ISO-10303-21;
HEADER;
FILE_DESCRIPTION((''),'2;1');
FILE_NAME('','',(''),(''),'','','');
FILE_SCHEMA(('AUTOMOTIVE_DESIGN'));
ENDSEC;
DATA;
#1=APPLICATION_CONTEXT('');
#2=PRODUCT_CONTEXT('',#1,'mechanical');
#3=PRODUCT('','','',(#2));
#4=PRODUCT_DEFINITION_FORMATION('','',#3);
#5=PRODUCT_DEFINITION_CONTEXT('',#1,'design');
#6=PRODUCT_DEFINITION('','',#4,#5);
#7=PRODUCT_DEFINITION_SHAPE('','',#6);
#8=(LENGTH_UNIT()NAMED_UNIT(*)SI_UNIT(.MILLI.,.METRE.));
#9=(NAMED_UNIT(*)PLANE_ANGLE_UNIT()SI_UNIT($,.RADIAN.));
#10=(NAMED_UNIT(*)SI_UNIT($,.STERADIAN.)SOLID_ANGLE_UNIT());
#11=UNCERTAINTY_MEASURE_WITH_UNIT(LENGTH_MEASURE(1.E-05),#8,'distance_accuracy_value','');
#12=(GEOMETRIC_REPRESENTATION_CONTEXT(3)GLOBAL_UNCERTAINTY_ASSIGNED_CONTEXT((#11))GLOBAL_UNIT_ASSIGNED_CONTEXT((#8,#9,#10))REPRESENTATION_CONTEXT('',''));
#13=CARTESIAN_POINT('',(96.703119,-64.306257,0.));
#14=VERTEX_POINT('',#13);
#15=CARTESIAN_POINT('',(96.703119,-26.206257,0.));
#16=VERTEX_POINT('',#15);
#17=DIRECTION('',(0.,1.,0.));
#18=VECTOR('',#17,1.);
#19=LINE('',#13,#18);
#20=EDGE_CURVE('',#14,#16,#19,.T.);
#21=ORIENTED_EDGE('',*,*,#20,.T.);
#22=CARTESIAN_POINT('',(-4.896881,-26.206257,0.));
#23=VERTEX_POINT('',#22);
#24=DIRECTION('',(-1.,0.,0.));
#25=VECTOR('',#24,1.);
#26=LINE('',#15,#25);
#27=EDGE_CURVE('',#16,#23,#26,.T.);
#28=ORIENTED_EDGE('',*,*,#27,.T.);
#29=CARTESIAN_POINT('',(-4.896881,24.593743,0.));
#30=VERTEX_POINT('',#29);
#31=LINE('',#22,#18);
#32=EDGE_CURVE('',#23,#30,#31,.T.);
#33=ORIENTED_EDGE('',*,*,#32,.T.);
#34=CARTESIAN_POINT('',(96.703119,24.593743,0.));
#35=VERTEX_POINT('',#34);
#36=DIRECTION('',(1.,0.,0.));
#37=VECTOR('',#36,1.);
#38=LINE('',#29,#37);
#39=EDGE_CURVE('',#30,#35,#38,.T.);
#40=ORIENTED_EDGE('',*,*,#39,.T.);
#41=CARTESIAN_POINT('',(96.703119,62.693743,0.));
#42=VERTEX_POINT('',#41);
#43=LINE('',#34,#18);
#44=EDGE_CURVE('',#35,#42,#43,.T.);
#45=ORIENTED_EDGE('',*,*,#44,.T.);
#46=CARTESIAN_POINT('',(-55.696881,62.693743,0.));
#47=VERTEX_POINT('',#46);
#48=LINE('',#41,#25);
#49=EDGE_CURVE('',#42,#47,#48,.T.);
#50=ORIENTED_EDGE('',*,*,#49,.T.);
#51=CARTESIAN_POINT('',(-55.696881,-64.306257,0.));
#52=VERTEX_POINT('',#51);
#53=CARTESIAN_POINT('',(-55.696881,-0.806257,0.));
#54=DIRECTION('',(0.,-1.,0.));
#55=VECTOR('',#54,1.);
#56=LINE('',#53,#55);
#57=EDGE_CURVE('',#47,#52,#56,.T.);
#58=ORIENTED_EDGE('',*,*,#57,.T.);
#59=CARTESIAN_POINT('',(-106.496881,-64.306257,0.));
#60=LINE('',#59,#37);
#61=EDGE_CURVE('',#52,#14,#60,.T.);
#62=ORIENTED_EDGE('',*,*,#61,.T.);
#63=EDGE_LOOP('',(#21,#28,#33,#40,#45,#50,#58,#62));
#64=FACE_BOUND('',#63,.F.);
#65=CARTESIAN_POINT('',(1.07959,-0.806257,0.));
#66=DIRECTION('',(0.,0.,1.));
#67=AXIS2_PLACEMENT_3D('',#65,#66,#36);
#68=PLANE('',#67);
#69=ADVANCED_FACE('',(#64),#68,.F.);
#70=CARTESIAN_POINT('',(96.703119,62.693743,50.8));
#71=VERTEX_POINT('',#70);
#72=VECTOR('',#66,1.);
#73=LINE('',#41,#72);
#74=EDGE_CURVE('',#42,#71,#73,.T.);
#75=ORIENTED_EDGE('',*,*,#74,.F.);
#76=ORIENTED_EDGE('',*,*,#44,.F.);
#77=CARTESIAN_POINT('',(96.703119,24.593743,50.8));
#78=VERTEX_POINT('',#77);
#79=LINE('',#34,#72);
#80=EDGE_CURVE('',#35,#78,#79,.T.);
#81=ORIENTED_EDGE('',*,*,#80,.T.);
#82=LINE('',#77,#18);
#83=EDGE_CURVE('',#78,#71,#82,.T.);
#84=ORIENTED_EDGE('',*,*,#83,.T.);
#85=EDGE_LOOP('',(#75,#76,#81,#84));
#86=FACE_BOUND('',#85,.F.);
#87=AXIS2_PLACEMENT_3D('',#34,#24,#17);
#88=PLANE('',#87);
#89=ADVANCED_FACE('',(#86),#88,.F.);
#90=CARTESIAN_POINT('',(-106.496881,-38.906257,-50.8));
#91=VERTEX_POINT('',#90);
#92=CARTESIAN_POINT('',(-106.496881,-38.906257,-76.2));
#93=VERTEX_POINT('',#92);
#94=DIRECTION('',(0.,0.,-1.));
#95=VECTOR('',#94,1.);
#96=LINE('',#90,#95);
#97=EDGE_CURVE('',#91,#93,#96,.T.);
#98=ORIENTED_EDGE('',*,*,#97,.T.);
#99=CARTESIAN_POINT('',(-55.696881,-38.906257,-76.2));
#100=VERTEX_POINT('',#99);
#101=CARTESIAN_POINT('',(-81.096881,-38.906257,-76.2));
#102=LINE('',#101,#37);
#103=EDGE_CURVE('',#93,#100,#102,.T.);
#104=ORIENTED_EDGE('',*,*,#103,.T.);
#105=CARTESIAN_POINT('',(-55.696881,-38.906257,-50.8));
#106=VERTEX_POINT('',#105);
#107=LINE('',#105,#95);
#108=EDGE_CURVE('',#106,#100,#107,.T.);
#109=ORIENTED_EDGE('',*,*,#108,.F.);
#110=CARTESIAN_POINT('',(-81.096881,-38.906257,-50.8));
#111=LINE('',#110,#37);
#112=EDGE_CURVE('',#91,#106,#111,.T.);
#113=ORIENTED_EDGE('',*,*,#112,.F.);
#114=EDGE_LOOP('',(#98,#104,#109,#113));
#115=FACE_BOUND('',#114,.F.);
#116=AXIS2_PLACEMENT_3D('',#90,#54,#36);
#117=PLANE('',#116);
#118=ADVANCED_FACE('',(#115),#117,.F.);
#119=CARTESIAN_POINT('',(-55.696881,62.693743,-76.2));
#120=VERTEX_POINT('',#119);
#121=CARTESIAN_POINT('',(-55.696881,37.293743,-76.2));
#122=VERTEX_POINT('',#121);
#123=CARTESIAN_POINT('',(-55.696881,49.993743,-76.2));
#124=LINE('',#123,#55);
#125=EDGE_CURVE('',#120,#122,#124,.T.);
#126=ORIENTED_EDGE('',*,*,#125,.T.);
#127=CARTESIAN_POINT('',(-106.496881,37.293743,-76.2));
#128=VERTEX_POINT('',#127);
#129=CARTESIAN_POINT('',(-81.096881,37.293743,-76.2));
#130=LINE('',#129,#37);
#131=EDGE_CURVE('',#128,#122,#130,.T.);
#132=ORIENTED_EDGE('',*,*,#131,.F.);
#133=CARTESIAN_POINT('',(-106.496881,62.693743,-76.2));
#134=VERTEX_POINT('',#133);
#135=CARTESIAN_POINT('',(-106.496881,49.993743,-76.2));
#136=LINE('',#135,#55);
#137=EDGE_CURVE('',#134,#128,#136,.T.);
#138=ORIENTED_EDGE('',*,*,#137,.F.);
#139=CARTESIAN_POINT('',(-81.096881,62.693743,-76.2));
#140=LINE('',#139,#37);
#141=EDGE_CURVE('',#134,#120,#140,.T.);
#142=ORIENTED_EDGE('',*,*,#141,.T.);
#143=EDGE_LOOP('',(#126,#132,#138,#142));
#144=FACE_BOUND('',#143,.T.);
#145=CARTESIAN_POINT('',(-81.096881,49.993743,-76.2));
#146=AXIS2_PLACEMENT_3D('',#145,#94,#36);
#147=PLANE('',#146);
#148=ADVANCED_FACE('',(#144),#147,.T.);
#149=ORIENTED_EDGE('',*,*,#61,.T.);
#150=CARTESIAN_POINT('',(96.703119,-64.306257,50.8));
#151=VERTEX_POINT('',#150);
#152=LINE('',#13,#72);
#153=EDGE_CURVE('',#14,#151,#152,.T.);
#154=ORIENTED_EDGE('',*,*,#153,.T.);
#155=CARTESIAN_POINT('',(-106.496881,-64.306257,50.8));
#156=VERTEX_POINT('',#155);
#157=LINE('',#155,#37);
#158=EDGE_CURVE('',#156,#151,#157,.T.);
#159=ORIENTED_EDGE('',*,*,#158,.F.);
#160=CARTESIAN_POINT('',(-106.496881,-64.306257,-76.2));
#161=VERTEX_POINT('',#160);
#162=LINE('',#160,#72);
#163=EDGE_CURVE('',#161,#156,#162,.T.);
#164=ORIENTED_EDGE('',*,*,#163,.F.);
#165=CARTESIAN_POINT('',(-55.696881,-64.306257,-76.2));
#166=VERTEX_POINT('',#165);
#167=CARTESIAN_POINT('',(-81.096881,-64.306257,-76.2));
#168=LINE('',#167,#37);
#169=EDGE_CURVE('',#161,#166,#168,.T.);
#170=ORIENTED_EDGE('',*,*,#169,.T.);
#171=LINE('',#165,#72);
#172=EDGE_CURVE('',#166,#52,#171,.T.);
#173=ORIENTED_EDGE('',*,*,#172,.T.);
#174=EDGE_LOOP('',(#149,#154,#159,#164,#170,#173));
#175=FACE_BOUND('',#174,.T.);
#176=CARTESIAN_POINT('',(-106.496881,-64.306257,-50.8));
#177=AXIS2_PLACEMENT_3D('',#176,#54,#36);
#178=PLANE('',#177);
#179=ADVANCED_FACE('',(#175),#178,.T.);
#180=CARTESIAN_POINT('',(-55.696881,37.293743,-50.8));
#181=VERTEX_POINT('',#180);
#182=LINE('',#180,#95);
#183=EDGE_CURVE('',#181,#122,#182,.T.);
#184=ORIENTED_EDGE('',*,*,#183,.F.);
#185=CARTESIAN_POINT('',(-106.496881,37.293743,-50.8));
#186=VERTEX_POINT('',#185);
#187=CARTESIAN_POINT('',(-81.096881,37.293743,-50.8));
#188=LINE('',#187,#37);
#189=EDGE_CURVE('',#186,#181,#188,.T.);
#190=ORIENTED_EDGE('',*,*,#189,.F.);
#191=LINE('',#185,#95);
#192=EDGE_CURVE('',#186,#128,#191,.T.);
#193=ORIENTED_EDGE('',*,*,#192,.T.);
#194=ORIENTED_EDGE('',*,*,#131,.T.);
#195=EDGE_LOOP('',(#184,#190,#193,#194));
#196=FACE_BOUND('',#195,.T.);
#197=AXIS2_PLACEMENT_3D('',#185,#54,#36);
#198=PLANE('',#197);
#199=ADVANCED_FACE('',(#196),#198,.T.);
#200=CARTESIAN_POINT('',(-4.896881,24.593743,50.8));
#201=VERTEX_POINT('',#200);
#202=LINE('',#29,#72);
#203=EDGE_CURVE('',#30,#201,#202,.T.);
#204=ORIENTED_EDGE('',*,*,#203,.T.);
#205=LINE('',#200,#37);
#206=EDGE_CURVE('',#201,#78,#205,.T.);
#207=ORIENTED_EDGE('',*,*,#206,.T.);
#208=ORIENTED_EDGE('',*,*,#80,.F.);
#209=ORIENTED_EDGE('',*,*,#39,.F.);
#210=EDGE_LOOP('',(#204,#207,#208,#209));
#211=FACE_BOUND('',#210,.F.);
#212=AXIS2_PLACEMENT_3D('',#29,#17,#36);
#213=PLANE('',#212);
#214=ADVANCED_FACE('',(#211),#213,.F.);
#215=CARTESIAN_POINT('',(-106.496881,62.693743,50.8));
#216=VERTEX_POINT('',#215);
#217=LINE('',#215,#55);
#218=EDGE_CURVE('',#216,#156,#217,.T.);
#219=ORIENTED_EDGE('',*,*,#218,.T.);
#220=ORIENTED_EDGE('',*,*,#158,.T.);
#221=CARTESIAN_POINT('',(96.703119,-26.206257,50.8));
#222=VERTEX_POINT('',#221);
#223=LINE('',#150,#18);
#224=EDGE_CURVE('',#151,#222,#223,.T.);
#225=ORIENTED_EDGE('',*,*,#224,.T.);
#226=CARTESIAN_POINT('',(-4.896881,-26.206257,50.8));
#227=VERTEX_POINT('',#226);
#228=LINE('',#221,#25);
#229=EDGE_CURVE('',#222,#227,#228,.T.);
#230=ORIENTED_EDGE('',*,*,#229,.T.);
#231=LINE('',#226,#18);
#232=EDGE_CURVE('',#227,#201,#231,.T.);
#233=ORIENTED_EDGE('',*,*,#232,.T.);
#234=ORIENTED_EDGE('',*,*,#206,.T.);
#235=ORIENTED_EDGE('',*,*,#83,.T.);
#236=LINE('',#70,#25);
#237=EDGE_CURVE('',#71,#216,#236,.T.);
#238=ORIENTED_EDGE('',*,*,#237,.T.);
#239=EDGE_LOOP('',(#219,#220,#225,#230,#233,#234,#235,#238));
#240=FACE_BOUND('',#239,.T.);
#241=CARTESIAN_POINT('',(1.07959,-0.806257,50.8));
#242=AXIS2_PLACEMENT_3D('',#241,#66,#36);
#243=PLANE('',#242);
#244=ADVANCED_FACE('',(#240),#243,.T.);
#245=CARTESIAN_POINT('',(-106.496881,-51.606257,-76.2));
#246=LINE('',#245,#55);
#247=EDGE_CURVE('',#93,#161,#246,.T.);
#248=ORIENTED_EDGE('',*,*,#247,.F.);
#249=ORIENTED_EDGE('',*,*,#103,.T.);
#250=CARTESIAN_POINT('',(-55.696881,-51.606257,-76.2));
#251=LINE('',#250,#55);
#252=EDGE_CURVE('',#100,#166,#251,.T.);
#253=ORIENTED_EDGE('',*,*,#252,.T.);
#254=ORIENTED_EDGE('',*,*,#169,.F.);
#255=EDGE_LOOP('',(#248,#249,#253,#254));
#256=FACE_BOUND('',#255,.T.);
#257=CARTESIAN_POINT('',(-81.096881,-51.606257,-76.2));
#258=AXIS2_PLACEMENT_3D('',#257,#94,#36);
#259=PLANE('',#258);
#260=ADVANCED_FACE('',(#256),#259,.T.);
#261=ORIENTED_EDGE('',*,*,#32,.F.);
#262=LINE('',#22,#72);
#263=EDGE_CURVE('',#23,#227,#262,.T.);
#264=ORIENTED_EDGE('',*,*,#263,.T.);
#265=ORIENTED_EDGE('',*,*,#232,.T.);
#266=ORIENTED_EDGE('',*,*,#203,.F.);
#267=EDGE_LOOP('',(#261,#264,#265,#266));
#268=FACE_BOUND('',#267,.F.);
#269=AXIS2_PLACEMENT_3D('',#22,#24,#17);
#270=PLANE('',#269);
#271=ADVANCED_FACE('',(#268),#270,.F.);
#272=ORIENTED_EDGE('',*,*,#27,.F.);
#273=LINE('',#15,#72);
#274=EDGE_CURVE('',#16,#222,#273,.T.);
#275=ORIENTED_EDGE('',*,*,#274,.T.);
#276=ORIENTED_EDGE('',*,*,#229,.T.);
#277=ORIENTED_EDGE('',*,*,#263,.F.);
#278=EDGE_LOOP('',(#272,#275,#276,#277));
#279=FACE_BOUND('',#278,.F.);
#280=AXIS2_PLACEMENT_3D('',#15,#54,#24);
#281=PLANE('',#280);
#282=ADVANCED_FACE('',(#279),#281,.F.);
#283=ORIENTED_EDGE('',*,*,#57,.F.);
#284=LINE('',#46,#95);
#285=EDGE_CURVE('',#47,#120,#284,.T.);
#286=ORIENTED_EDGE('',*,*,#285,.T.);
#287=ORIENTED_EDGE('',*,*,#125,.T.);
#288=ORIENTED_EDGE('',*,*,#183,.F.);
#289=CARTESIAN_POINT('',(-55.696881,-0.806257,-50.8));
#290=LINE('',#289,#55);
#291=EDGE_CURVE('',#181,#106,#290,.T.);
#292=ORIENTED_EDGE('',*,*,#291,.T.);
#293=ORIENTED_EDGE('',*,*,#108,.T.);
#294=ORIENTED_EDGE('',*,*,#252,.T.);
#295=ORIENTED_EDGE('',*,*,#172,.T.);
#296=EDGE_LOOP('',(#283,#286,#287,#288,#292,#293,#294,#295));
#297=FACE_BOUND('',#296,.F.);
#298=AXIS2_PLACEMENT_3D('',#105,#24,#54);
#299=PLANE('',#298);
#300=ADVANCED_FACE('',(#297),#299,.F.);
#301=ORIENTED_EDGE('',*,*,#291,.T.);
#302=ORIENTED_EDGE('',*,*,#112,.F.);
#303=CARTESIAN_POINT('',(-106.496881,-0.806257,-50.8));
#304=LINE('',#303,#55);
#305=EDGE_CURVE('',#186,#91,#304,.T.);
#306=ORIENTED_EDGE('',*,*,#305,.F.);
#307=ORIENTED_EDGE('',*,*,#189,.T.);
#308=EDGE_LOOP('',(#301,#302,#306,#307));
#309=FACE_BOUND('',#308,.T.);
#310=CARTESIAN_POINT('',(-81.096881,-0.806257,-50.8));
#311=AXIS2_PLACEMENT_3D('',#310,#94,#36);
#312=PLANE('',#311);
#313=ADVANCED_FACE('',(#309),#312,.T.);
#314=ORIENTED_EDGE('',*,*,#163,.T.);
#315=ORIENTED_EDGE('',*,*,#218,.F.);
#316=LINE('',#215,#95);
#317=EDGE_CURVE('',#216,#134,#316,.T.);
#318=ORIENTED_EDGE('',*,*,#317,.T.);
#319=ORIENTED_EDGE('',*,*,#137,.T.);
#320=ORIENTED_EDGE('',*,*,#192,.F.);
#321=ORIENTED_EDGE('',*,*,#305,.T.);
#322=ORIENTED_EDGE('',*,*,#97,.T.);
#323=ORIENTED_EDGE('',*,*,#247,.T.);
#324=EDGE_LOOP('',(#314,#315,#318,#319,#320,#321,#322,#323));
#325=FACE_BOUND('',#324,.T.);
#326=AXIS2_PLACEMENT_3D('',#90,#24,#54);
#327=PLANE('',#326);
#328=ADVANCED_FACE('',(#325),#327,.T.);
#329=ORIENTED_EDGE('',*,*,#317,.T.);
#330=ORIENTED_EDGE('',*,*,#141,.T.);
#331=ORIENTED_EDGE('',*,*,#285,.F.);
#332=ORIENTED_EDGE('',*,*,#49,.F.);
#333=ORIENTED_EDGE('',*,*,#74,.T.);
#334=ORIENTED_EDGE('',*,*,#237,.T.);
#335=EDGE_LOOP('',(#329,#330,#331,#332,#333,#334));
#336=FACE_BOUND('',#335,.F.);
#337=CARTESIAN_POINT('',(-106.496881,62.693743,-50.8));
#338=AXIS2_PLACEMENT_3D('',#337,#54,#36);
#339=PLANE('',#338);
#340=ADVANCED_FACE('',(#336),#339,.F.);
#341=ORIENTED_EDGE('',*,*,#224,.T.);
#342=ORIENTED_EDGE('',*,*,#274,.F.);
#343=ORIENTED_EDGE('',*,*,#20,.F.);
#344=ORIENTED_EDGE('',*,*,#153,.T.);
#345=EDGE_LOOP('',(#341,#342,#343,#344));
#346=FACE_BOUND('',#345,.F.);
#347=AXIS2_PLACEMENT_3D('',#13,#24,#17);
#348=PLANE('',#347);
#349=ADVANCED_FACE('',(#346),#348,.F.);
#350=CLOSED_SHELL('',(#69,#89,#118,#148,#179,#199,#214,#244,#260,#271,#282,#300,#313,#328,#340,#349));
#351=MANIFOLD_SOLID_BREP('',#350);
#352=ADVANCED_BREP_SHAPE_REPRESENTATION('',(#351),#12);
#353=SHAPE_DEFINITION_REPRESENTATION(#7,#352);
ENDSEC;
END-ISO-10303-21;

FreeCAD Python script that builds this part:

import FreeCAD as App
import Part
import Sketcher
Q = App.Units.Quantity

doc = App.newDocument("Part")
body = doc.addObject("PartDesign::Body", "Body")

# Sketch on XY plane
sketch1 = body.newObject("Sketcher::SketchObject", "Sketch")
sketch1.AttachmentSupport = (doc.getObject("XY_Plane"), [""])
sketch1.MapMode = "FlatFace"
sketch1.addGeometry(Part.LineSegment(App.Vector(96.703119, 62.693743, 0), App.Vector(-106.496881, 62.693743, 0)), False)
sketch1.addGeometry(Part.LineSegment(App.Vector(-106.496881, 62.693743, 0), App.Vector(-106.496881, -64.306257, 0)), False)
sketch1.addGeometry(Part.LineSegment(App.Vector(-106.496881, -64.306257, 0), App.Vector(96.703119, -64.306257, 0)), False)
sketch1.addGeometry(Part.LineSegment(App.Vector(96.703119, -64.306257, 0), App.Vector(96.703119, -26.206257, 0)), False)
sketch1.addGeometry(Part.LineSegment(App.Vector(96.703119, -26.206257, 0), App.Vector(-4.896881, -26.206257, 0)), False)
sketch1.addGeometry(Part.LineSegment(App.Vector(-4.896881, -26.206257, 0), App.Vector(-4.896881, 24.593743, 0)), False)
sketch1.addGeometry(Part.LineSegment(App.Vector(-4.896881, 24.593743, 0), App.Vector(96.703119, 24.593743, 0)), False)
sketch1.addGeometry(Part.LineSegment(App.Vector(96.703119, 24.593743, 0), App.Vector(96.703119, 62.693743, 0)), False)
sketch1.addConstraint(Sketcher.Constraint("Coincident", 0, 2, 1, 1))
sketch1.addConstraint(Sketcher.Constraint("Coincident", 1, 2, 2, 1))
sketch1.addConstraint(Sketcher.Constraint("Coincident", 2, 2, 3, 1))
sketch1.addConstraint(Sketcher.Constraint("Coincident", 3, 2, 4, 1))
sketch1.addConstraint(Sketcher.Constraint("Coincident", 4, 2, 5, 1))
sketch1.addConstraint(Sketcher.Constraint("Coincident", 5, 2, 6, 1))
sketch1.addConstraint(Sketcher.Constraint("Coincident", 6, 2, 7, 1))
sketch1.addConstraint(Sketcher.Constraint("Coincident", 7, 2, 0, 1))
sketch1.addConstraint(Sketcher.Constraint("Horizontal", 0))
sketch1.addConstraint(Sketcher.Constraint("Vertical", 1))
sketch1.addConstraint(Sketcher.Constraint("Horizontal", 2))
sketch1.addConstraint(Sketcher.Constraint("Vertical", 3))
sketch1.addConstraint(Sketcher.Constraint("Horizontal", 4))
sketch1.addConstraint(Sketcher.Constraint("Vertical", 5))
sketch1.addConstraint(Sketcher.Constraint("Horizontal", 6))
sketch1.addConstraint(Sketcher.Constraint("Vertical", 7))
sketch1.addConstraint(Sketcher.Constraint("Vertical", 3, 2, 6, 2))
sketch1.addConstraint(Sketcher.Constraint("Equal", 3, 7))
sketch1.addConstraint(Sketcher.Constraint("DistanceX", 0, 2, 0, 1, Q("8 in")))
sketch1.addConstraint(Sketcher.Constraint("DistanceX", 4, 2, 4, 1, Q("4 in")))
sketch1.addConstraint(Sketcher.Constraint("DistanceY", 1, 2, 1, 1, Q("5 in")))
sketch1.addConstraint(Sketcher.Constraint("DistanceY", 5, 1, 5, 2, Q("2 in")))
sketch1.addConstraint(Sketcher.Constraint("DistanceX", 0, 2, -1, 1, Q("106.496881 mm")))
sketch1.addConstraint(Sketcher.Constraint("DistanceY", -1, 1, 0, 2, Q("62.693743 mm")))
pad1 = body.newObject("PartDesign::Pad", "Pad")
pad1.Profile = sketch1
pad1.Length = Q("2 in")

# Sketch on XY plane
sketch2 = body.newObject("Sketcher::SketchObject", "Sketch001")
sketch2.AttachmentSupport = (doc.getObject("XY_Plane"), [""])
sketch2.MapMode = "FlatFace"
sketch2.addGeometry(Part.LineSegment(App.Vector(-106.496881, -64.306257, 0), App.Vector(-106.496881, 62.693743, 0)), False)
sketch2.addGeometry(Part.LineSegment(App.Vector(-106.496881, 62.693743, 0), App.Vector(-55.696881, 62.693743, 0)), False)
sketch2.addGeometry(Part.LineSegment(App.Vector(-55.696881, 62.693743, 0), App.Vector(-55.696881, -64.306257, 0)), False)
sketch2.addGeometry(Part.LineSegment(App.Vector(-55.696881, -64.306257, 0), App.Vector(-106.496881, -64.306257, 0)), False)
sketch2.addConstraint(Sketcher.Constraint("Coincident", 0, 2, 1, 1))
sketch2.addConstraint(Sketcher.Constraint("Coincident", 1, 2, 2, 1))
sketch2.addConstraint(Sketcher.Constraint("Coincident", 2, 2, 3, 1))
sketch2.addConstraint(Sketcher.Constraint("Coincident", 3, 2, 0, 1))
sketch2.addConstraint(Sketcher.Constraint("Vertical", 0))
sketch2.addConstraint(Sketcher.Constraint("Horizontal", 1))
sketch2.addConstraint(Sketcher.Constraint("Vertical", 2))
sketch2.addConstraint(Sketcher.Constraint("Horizontal", 3))
sketch2.addConstraint(Sketcher.Constraint("DistanceX", 1, 1, 1, 2, Q("2 in")))
sketch2.addConstraint(Sketcher.Constraint("DistanceY", 0, 1, 0, 2, Q("5 in")))
sketch2.addConstraint(Sketcher.Constraint("DistanceX", 0, 2, -1, 1, Q("106.496881 mm")))
sketch2.addConstraint(Sketcher.Constraint("DistanceY", -1, 1, 0, 2, Q("62.693743 mm")))
pad2 = body.newObject("PartDesign::Pad", "Pad001")
pad2.Profile = sketch2
pad2.Length = Q("2 in")
pad2.Reversed = True

# Sketch on XY plane
sketch3 = body.newObject("Sketcher::SketchObject", "Sketch002")
sketch3.AttachmentSupport = (doc.getObject("XY_Plane"), [""])
sketch3.MapMode = "FlatFace"
sketch3.AttachmentOffset = App.Placement(App.Vector(0, 0, -2 * 25.4), App.Rotation())
sketch3.addGeometry(Part.LineSegment(App.Vector(-106.496881, 37.293743, 0), App.Vector(-106.496881, 62.693743, 0)), False)
sketch3.addGeometry(Part.LineSegment(App.Vector(-106.496881, 62.693743, 0), App.Vector(-55.696881, 62.693743, 0)), False)
sketch3.addGeometry(Part.LineSegment(App.Vector(-55.696881, 62.693743, 0), App.Vector(-55.696881, 37.293743, 0)), False)
sketch3.addGeometry(Part.LineSegment(App.Vector(-55.696881, 37.293743, 0), App.Vector(-106.496881, 37.293743, 0)), False)
sketch3.addConstraint(Sketcher.Constraint("Coincident", 0, 2, 1, 1))
sketch3.addConstraint(Sketcher.Constraint("Coincident", 1, 2, 2, 1))
sketch3.addConstraint(Sketcher.Constraint("Coincident", 2, 2, 3, 1))
sketch3.addConstraint(Sketcher.Constraint("Coincident", 3, 2, 0, 1))
sketch3.addConstraint(Sketcher.Constraint("Vertical", 0))
sketch3.addConstraint(Sketcher.Constraint("Horizontal", 1))
sketch3.addConstraint(Sketcher.Constraint("Vertical", 2))
sketch3.addConstraint(Sketcher.Constraint("Horizontal", 3))
sketch3.addConstraint(Sketcher.Constraint("DistanceX", 1, 1, 1, 2, Q("2 in")))
sketch3.addConstraint(Sketcher.Constraint("DistanceY", 0, 1, 0, 2, Q("1 in")))
sketch3.addConstraint(Sketcher.Constraint("DistanceX", 0, 2, -1, 1, Q("106.496881 mm")))
sketch3.addConstraint(Sketcher.Constraint("DistanceY", -1, 1, 0, 2, Q("62.693743 mm")))
pad3 = body.newObject("PartDesign::Pad", "Pad002")
pad3.Profile = sketch3
pad3.Length = Q("1 in")
pad3.Reversed = True

# Sketch on XY plane
sketch4 = body.newObject("Sketcher::SketchObject", "Sketch003")
sketch4.AttachmentSupport = (doc.getObject("XY_Plane"), [""])
sketch4.MapMode = "FlatFace"
sketch4.AttachmentOffset = App.Placement(App.Vector(0, 0, -2 * 25.4), App.Rotation())
sketch4.addGeometry(Part.LineSegment(App.Vector(-106.496881, -64.306257, 0), App.Vector(-106.496881, -38.906257, 0)), False)
sketch4.addGeometry(Part.LineSegment(App.Vector(-106.496881, -38.906257, 0), App.Vector(-55.696881, -38.906257, 0)), False)
sketch4.addGeometry(Part.LineSegment(App.Vector(-55.696881, -38.906257, 0), App.Vector(-55.696881, -64.306257, 0)), False)
sketch4.addGeometry(Part.LineSegment(App.Vector(-55.696881, -64.306257, 0), App.Vector(-106.496881, -64.306257, 0)), False)
sketch4.addConstraint(Sketcher.Constraint("Coincident", 0, 2, 1, 1))
sketch4.addConstraint(Sketcher.Constraint("Coincident", 1, 2, 2, 1))
sketch4.addConstraint(Sketcher.Constraint("Coincident", 2, 2, 3, 1))
sketch4.addConstraint(Sketcher.Constraint("Coincident", 3, 2, 0, 1))
sketch4.addConstraint(Sketcher.Constraint("Vertical", 0))
sketch4.addConstraint(Sketcher.Constraint("Horizontal", 1))
sketch4.addConstraint(Sketcher.Constraint("Vertical", 2))
sketch4.addConstraint(Sketcher.Constraint("Horizontal", 3))
sketch4.addConstraint(Sketcher.Constraint("DistanceX", 1, 1, 1, 2, Q("2 in")))
sketch4.addConstraint(Sketcher.Constraint("DistanceY", 0, 1, 0, 2, Q("1 in")))
sketch4.addConstraint(Sketcher.Constraint("DistanceX", 0, 2, -1, 1, Q("106.496881 mm")))
sketch4.addConstraint(Sketcher.Constraint("DistanceY", 0, 2, -1, 1, Q("38.906257 mm")))
pad4 = body.newObject("PartDesign::Pad", "Pad003")
pad4.Profile = sketch4
pad4.Length = Q("1 in")
pad4.Reversed = True

doc.recompute()
